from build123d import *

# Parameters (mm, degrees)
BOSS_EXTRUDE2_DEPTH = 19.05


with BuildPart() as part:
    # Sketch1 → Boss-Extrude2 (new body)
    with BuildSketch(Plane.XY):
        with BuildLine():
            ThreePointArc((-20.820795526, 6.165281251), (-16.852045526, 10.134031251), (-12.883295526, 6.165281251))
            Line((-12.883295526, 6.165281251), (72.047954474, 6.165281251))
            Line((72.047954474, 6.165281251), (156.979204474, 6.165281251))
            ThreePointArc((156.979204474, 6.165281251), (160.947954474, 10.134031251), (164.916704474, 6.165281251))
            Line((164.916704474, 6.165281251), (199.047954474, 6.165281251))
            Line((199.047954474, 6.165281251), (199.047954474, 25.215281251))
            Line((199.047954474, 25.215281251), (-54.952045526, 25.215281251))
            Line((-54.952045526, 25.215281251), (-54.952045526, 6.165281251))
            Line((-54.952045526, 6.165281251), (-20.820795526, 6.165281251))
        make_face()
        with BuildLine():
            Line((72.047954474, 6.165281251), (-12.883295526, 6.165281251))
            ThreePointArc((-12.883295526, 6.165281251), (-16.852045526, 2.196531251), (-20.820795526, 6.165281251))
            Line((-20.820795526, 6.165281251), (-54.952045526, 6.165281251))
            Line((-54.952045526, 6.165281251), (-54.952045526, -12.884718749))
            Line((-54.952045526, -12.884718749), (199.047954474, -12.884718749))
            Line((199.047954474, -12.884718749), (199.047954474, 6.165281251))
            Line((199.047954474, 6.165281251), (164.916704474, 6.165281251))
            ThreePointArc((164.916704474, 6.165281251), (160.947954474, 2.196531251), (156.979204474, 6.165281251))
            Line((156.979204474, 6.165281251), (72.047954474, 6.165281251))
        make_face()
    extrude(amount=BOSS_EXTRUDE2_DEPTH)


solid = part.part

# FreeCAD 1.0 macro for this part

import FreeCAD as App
import Part
import Sketcher
from FreeCAD import Vector
Q = App.Units.Quantity

doc = App.newDocument("Part")
body = doc.addObject("PartDesign::Body", "Body")

# Sketch on XY plane
sketch1 = body.newObject("Sketcher::SketchObject", "Sketch")
sketch1.AttachmentSupport = (doc.getObject("XY_Plane"), [""])
sketch1.MapMode = "FlatFace"
sketch1.addGeometry([
    Part.LineSegment(Vector(199, 25.2, 0), Vector(-55, 25.2, 0)),  # 0
    Part.LineSegment(Vector(-55, 25.2, 0), Vector(-55, -12.9, 0)),  # 1
    Part.LineSegment(Vector(-55, -12.9, 0), Vector(199, -12.9, 0)),  # 2
    Part.LineSegment(Vector(199, -12.9, 0), Vector(199, 25.2, 0)),  # 3
    Part.Circle(Vector(-16.9, 6.2, 0), Vector(0, 0, 1), 4),  # 4
    Part.Circle(Vector(160.9, 6.2, 0), Vector(0, 0, 1), 4),  # 5
], False)
sketch1.addConstraint([
    Sketcher.Constraint("Coincident", 0, 2, 1, 1),
    Sketcher.Constraint("Coincident", 1, 2, 2, 1),
    Sketcher.Constraint("Coincident", 2, 2, 3, 1),
    Sketcher.Constraint("Coincident", 3, 2, 0, 1),
    Sketcher.Constraint("Horizontal", 0),
    Sketcher.Constraint("Vertical", 1),
    Sketcher.Constraint("Horizontal", 2),
    Sketcher.Constraint("Vertical", 3),
    Sketcher.Constraint("Equal", 4, 5),
    Sketcher.Constraint("Horizontal", 4, 3, 5, 3),
    Sketcher.Constraint("DistanceX", 0, 2, 0, 1, Q("10 in")),
    Sketcher.Constraint("Diameter", 4, Q("0.3125 in")),
    Sketcher.Constraint("DistanceY", 1, 2, 1, 1, Q("1.5 in")),
    Sketcher.Constraint("DistanceX", 4, 3, 5, 3, Q("7 in")),
    Sketcher.Constraint("DistanceX", 0, 2, 4, 3, Q("1.5 in")),
    Sketcher.Constraint("DistanceY", 4, 3, 0, 2, Q("0.75 in")),
    Sketcher.Constraint("DistanceY", -1, 1, 4, 3, 6.165281),
    Sketcher.Constraint("DistanceX", 4, 3, -1, 1, 16.852046),
])
pad1 = body.newObject("PartDesign::Pad", "Pad")
pad1.Profile = sketch1
pad1.Length = Q("0.75 in")

doc.recompute()
